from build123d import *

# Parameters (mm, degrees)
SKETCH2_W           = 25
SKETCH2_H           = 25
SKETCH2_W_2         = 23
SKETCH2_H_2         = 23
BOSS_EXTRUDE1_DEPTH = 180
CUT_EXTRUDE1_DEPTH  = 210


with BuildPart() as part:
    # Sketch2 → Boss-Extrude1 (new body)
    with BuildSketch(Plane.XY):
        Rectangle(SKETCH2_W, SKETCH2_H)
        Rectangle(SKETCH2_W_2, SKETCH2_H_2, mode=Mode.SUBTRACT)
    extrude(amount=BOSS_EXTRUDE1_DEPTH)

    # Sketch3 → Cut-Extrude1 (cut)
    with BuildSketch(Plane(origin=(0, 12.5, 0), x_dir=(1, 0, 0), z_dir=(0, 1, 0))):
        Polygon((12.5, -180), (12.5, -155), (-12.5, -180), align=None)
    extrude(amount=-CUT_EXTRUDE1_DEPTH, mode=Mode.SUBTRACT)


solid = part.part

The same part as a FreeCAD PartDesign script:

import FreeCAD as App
import Part
import Sketcher

doc = App.newDocument("Part")
body = doc.addObject("PartDesign::Body", "Body")

# Sketch on XY plane
sketch1 = doc.addObject("Sketcher::SketchObject", "Sketch")
body.addObject(sketch1)
sketch1.AttachmentSupport = (doc.XY_Plane, [""])
sketch1.MapMode = "FlatFace"
sketch1.addGeometry([
    Part.LineSegment(App.Vector(-12, 12, 0), App.Vector(-12, -12, 0)),  # 0
    Part.LineSegment(App.Vector(-12, -12, 0), App.Vector(12, -12, 0)),  # 1
    Part.LineSegment(App.Vector(12, -12, 0), App.Vector(12, 12, 0)),  # 2
    Part.LineSegment(App.Vector(12, 12, 0), App.Vector(-12, 12, 0)),  # 3
    Part.LineSegment(App.Vector(12, -12, 0), App.Vector(-12, -12, 0)),  # 4
    Part.LineSegment(App.Vector(-12, -12, 0), App.Vector(-12, 12, 0)),  # 5
    Part.LineSegment(App.Vector(-12, 12, 0), App.Vector(12, 12, 0)),  # 6
    Part.LineSegment(App.Vector(12, 12, 0), App.Vector(12, -12, 0)),  # 7
], False)
sketch1.addConstraint([
    Sketcher.Constraint("Coincident", 0, 2, 1, 1),
    Sketcher.Constraint("Coincident", 1, 2, 2, 1),
    Sketcher.Constraint("Coincident", 2, 2, 3, 1),
    Sketcher.Constraint("Coincident", 3, 2, 0, 1),
    Sketcher.Constraint("Coincident", 4, 2, 5, 1),
    Sketcher.Constraint("Coincident", 5, 2, 6, 1),
    Sketcher.Constraint("Coincident", 6, 2, 7, 1),
    Sketcher.Constraint("Coincident", 7, 2, 4, 1),
    Sketcher.Constraint("Vertical", 0),
    Sketcher.Constraint("Horizontal", 1),
    Sketcher.Constraint("Vertical", 2),
    Sketcher.Constraint("Horizontal", 3),
    Sketcher.Constraint("Horizontal", 4),
    Sketcher.Constraint("Vertical", 5),
    Sketcher.Constraint("Horizontal", 6),
    Sketcher.Constraint("Vertical", 7),
    Sketcher.Constraint("Symmetric", 0, 2, 2, 2, -1, 1),
    Sketcher.Constraint("Symmetric", 4, 2, 6, 2, -1, 1),
    Sketcher.Constraint("Equal", 3, 0),
    Sketcher.Constraint("Equal", 6, 5),
    Sketcher.Constraint("DistanceX", 1, 1, 1, 2, 25.0),
    Sketcher.Constraint("DistanceX", 4, 2, 4, 1, 23.0),
])
pad1 = doc.addObject("PartDesign::Pad", "Pad")
body.addObject(pad1)
pad1.Profile = sketch1
pad1.Length = 180

# Sketch on XZ plane
sketch2 = doc.addObject("Sketcher::SketchObject", "Sketch001")
body.addObject(sketch2)
sketch2.AttachmentSupport = (doc.XZ_Plane, [""])
sketch2.MapMode = "FlatFace"
sketch2.AttachmentOffset = App.Placement(App.Vector(0, 0, -12.5), App.Rotation())
sketch2.addGeometry([
    Part.LineSegment(App.Vector(12, 180, 0), App.Vector(12, 155, 0)),
    Part.LineSegment(App.Vector(12, 155, 0), App.Vector(-12, 180, 0)),
    Part.LineSegment(App.Vector(-12, 180, 0), App.Vector(12, 180, 0)),
], False)
sketch2.addConstraint([
    Sketcher.Constraint("Coincident", 0, 2, 1, 1),
    Sketcher.Constraint("Coincident", 1, 2, 2, 1),
    Sketcher.Constraint("Coincident", 2, 2, 0, 1),
    Sketcher.Constraint("Vertical", 0),
    Sketcher.Constraint("Horizontal", 2),
    Sketcher.Constraint("Equal", 2, 0),
    Sketcher.Constraint("DistanceX", 2, 1, 2, 2, 25.0),
    Sketcher.Constraint("DistanceY", -1, 1, 0, 2, 155.0),
    Sketcher.Constraint("DistanceX", -1, 1, 0, 2, 12.5),
])
pocket1 = doc.addObject("PartDesign::Pocket", "Pocket")
body.addObject(pocket1)
pocket1.Profile = sketch2
pocket1.Length = 210
pocket1.Reversed = True

doc.recompute()
